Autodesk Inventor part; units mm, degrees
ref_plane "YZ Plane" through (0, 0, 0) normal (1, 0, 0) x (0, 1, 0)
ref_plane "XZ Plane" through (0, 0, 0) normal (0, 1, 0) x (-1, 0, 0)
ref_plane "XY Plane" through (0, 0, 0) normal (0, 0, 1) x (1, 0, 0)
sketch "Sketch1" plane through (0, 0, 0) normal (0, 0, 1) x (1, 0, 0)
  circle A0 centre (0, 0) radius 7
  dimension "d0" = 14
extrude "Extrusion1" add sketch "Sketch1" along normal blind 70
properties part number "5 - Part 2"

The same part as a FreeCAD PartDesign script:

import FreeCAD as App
import Part
import Sketcher

V = App.Vector

doc = App.newDocument("Part")
body = doc.addObject("PartDesign::Body", "Body")

# Sketch on XY plane
sketch1 = body.newObject("Sketcher::SketchObject", "Sketch")
sketch1.AttachmentSupport = (doc.getObject("XY_Plane"), [""])
sketch1.MapMode = "FlatFace"
sketch1.addGeometry(Part.Circle(V(0, 0, 0), V(0, 0, 1), 7), False)
sketch1.addConstraint(Sketcher.Constraint("Coincident", 0, 3, -1, 1))
sketch1.addConstraint(Sketcher.Constraint("Diameter", 0, 14.0))
pad1 = body.newObject("PartDesign::Pad", "Pad")
pad1.Profile = sketch1
pad1.Length = 70

doc.recompute()
